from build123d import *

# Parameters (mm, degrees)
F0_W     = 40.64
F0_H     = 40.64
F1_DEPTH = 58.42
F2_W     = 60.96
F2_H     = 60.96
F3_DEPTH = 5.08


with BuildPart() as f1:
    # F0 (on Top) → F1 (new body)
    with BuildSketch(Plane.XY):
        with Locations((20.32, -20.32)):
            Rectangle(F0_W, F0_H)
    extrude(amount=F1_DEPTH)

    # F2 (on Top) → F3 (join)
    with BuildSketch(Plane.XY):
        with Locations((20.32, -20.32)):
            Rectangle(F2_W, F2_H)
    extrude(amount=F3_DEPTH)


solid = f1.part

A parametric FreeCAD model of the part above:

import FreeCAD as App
import Part
import Sketcher
from FreeCAD import Vector
Q = App.Units.Quantity

doc = App.newDocument("Part")
body = doc.addObject("PartDesign::Body", "Body")

# Sketch on XY plane
sketch1 = body.newObject("Sketcher::SketchObject", "Sketch")
sketch1.AttachmentSupport = (doc.getObject("XY_Plane"), [""])
sketch1.MapMode = "FlatFace"
sketch1.addGeometry([
    Part.LineSegment(Vector(0, 0, 0), Vector(0, -41, 0)),
    Part.LineSegment(Vector(0, -41, 0), Vector(41, -41, 0)),
    Part.LineSegment(Vector(41, -41, 0), Vector(41, 0, 0)),
    Part.LineSegment(Vector(41, 0, 0), Vector(0, 0, 0)),
], False)
sketch1.addConstraint([
    Sketcher.Constraint("Coincident", 0, 2, 1, 1),
    Sketcher.Constraint("Coincident", 1, 2, 2, 1),
    Sketcher.Constraint("Coincident", 2, 2, 3, 1),
    Sketcher.Constraint("Coincident", 3, 2, 0, 1),
    Sketcher.Constraint("Vertical", 0),
    Sketcher.Constraint("Horizontal", 1),
    Sketcher.Constraint("Vertical", 2),
    Sketcher.Constraint("Horizontal", 3),
    Sketcher.Constraint("Coincident", 3, 2, -1, 1),
    Sketcher.Constraint("Equal", 3, 0),
    Sketcher.Constraint("DistanceX", 1, 1, 1, 2, Q("1.6 in")),
])
pad1 = body.newObject("PartDesign::Pad", "Pad")
pad1.Profile = sketch1
pad1.Length = Q("2.3 in")

# Sketch on XY plane
sketch2 = body.newObject("Sketcher::SketchObject", "Sketch001")
sketch2.AttachmentSupport = (doc.getObject("XY_Plane"), [""])
sketch2.MapMode = "FlatFace"
sketch2.addGeometry([
    Part.LineSegment(Vector(-10, 10, 0), Vector(-10, -51, 0)),
    Part.LineSegment(Vector(-10, -51, 0), Vector(51, -51, 0)),
    Part.LineSegment(Vector(51, -51, 0), Vector(51, 10, 0)),
    Part.LineSegment(Vector(51, 10, 0), Vector(-10, 10, 0)),
], False)
sketch2.addConstraint([
    Sketcher.Constraint("Coincident", 0, 2, 1, 1),
    Sketcher.Constraint("Coincident", 1, 2, 2, 1),
    Sketcher.Constraint("Coincident", 2, 2, 3, 1),
    Sketcher.Constraint("Coincident", 3, 2, 0, 1),
    Sketcher.Constraint("Vertical", 0),
    Sketcher.Constraint("Horizontal", 1),
    Sketcher.Constraint("Vertical", 2),
    Sketcher.Constraint("Horizontal", 3),
    Sketcher.Constraint("Equal", 3, 0),
    Sketcher.Constraint("DistanceX", 1, 1, 1, 2, Q("2.4 in")),
    Sketcher.Constraint("DistanceY", 0, 2, -1, 1, Q("2 in")),
    Sketcher.Constraint("DistanceX", -1, 1, 1, 2, Q("2 in")),
])
pad2 = body.newObject("PartDesign::Pad", "Pad001")
pad2.Profile = sketch2
pad2.Length = Q("0.2 in")

doc.recompute()
